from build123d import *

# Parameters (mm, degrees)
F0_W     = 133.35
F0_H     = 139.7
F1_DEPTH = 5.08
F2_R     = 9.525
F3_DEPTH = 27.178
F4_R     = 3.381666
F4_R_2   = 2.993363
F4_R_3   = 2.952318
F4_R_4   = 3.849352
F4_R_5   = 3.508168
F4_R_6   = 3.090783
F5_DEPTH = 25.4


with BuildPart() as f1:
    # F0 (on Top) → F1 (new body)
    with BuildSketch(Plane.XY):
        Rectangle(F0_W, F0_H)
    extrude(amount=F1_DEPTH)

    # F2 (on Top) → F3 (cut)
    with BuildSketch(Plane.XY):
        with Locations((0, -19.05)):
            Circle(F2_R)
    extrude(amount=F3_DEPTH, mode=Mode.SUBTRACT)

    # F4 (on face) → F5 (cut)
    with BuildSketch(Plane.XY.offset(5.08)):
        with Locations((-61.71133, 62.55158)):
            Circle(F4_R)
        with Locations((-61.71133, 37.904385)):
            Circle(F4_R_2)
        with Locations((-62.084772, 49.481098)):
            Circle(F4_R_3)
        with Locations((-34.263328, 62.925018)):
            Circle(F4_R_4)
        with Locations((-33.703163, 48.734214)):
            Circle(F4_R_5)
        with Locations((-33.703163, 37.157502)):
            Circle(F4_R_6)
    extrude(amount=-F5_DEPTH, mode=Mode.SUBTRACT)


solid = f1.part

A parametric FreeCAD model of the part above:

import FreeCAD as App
import Part
import Sketcher
Q = App.Units.Quantity

doc = App.newDocument("Part")
body = doc.addObject("PartDesign::Body", "Body")

sketch1 = body.newObject("Sketcher::SketchObject", "Sketch")
sketch1.AttachmentSupport = (doc.getObject("XY_Plane"), [""])
sketch1.MapMode = "FlatFace"
sketch1.addGeometry(Part.LineSegment(App.Vector(-67, 70, 0), App.Vector(-67, -70, 0)), False)
sketch1.addGeometry(Part.LineSegment(App.Vector(-67, -70, 0), App.Vector(67, -70, 0)), False)
sketch1.addGeometry(Part.LineSegment(App.Vector(67, -70, 0), App.Vector(67, 70, 0)), False)
sketch1.addGeometry(Part.LineSegment(App.Vector(67, 70, 0), App.Vector(-67, 70, 0)), False)
sketch1.addConstraint(Sketcher.Constraint("Coincident", 0, 2, 1, 1))
sketch1.addConstraint(Sketcher.Constraint("Coincident", 1, 2, 2, 1))
sketch1.addConstraint(Sketcher.Constraint("Coincident", 2, 2, 3, 1))
sketch1.addConstraint(Sketcher.Constraint("Coincident", 3, 2, 0, 1))
sketch1.addConstraint(Sketcher.Constraint("Vertical", 0))
sketch1.addConstraint(Sketcher.Constraint("Horizontal", 1))
sketch1.addConstraint(Sketcher.Constraint("Vertical", 2))
sketch1.addConstraint(Sketcher.Constraint("Horizontal", 3))
sketch1.addConstraint(Sketcher.Constraint("Symmetric", 0, 2, 2, 2, -1, 1))
sketch1.addConstraint(Sketcher.Constraint("DistanceY", 0, 2, 0, 1, Q("5.5 in")))
sketch1.addConstraint(Sketcher.Constraint("DistanceX", 1, 1, 1, 2, Q("5.25 in")))
pad1 = body.newObject("PartDesign::Pad", "Pad")
pad1.Profile = sketch1
pad1.Length = Q("0.2 in")

sketch2 = body.newObject("Sketcher::SketchObject", "Sketch001")
sketch2.AttachmentSupport = (doc.getObject("XY_Plane"), [""])
sketch2.MapMode = "FlatFace"
sketch2.addGeometry(Part.Circle(App.Vector(0, -19, 0), App.Vector(0, 0, 1), 10), False)
sketch2.addConstraint(Sketcher.Constraint("PointOnObject", 0, 3, -2))
sketch2.addConstraint(Sketcher.Constraint("Diameter", 0, Q("0.75 in")))
sketch2.addConstraint(Sketcher.Constraint("DistanceY", 0, 3, -1, 1, Q("0.75 in")))
pocket1 = body.newObject("PartDesign::Pocket", "Pocket")
pocket1.Profile = sketch2
pocket1.Length = Q("1.07 in")
pocket1.Reversed = True

sketch3 = body.newObject("Sketcher::SketchObject", "Sketch002")
sketch3.AttachmentSupport = (doc.getObject("XY_Plane"), [""])
sketch3.MapMode = "FlatFace"
sketch3.AttachmentOffset = App.Placement(App.Vector(0, 0, 0.2 * 25.4), App.Rotation())
sketch3.addGeometry(Part.Circle(App.Vector(-61.7, 62.6, 0), App.Vector(0, 0, 1), 3.4), False)
sketch3.addGeometry(Part.Circle(App.Vector(-61.7, 37.9, 0), App.Vector(0, 0, 1), 3), False)
sketch3.addGeometry(Part.Circle(App.Vector(-62.1, 49.5, 0), App.Vector(0, 0, 1), 3), False)
sketch3.addGeometry(Part.Circle(App.Vector(-34.3, 62.9, 0), App.Vector(0, 0, 1), 3.8), False)
sketch3.addGeometry(Part.Circle(App.Vector(-33.7, 48.7, 0), App.Vector(0, 0, 1), 3.5), False)
sketch3.addGeometry(Part.Circle(App.Vector(-33.7, 37.2, 0), App.Vector(0, 0, 1), 3.1), False)
sketch3.addConstraint(Sketcher.Constraint("Vertical", 0, 3, 1, 3))
sketch3.addConstraint(Sketcher.Constraint("Vertical", 4, 3, 5, 3))
sketch3.addConstraint(Sketcher.Constraint("Diameter", 0, 6.763332))
sketch3.addConstraint(Sketcher.Constraint("Diameter", 1, 5.986726))
sketch3.addConstraint(Sketcher.Constraint("Diameter", 2, 5.904636))
sketch3.addConstraint(Sketcher.Constraint("Diameter", 3, 7.698704))
sketch3.addConstraint(Sketcher.Constraint("Diameter", 4, 7.016336))
sketch3.addConstraint(Sketcher.Constraint("Diameter", 5, 6.181566))
sketch3.addConstraint(Sketcher.Constraint("DistanceY", -1, 1, 2, 3, 49.481098))
sketch3.addConstraint(Sketcher.Constraint("DistanceX", 0, 3, 3, 3, 27.448002))
sketch3.addConstraint(Sketcher.Constraint("DistanceX", 0, 3, -1, 1, 61.71133))
sketch3.addConstraint(Sketcher.Constraint("DistanceY", -1, 1, 0, 3, 62.55158))
sketch3.addConstraint(Sketcher.Constraint("DistanceY", 0, 3, 3, 3, 0.373438))
sketch3.addConstraint(Sketcher.Constraint("DistanceX", 2, 3, 4, 3, 28.381609))
sketch3.addConstraint(Sketcher.Constraint("DistanceY", 1, 3, 4, 3, 10.829829))
sketch3.addConstraint(Sketcher.Constraint("DistanceY", 5, 3, 0, 3, 25.394078))
sketch3.addConstraint(Sketcher.Constraint("DistanceY", -1, 1, 1, 3, 37.904385))
sketch3.addConstraint(Sketcher.Constraint("DistanceX", 2, 3, -1, 1, 62.084772))
pocket2 = body.newObject("PartDesign::Pocket", "Pocket001")
pocket2.Profile = sketch3
pocket2.Length = Q("1 in")

doc.recompute()
